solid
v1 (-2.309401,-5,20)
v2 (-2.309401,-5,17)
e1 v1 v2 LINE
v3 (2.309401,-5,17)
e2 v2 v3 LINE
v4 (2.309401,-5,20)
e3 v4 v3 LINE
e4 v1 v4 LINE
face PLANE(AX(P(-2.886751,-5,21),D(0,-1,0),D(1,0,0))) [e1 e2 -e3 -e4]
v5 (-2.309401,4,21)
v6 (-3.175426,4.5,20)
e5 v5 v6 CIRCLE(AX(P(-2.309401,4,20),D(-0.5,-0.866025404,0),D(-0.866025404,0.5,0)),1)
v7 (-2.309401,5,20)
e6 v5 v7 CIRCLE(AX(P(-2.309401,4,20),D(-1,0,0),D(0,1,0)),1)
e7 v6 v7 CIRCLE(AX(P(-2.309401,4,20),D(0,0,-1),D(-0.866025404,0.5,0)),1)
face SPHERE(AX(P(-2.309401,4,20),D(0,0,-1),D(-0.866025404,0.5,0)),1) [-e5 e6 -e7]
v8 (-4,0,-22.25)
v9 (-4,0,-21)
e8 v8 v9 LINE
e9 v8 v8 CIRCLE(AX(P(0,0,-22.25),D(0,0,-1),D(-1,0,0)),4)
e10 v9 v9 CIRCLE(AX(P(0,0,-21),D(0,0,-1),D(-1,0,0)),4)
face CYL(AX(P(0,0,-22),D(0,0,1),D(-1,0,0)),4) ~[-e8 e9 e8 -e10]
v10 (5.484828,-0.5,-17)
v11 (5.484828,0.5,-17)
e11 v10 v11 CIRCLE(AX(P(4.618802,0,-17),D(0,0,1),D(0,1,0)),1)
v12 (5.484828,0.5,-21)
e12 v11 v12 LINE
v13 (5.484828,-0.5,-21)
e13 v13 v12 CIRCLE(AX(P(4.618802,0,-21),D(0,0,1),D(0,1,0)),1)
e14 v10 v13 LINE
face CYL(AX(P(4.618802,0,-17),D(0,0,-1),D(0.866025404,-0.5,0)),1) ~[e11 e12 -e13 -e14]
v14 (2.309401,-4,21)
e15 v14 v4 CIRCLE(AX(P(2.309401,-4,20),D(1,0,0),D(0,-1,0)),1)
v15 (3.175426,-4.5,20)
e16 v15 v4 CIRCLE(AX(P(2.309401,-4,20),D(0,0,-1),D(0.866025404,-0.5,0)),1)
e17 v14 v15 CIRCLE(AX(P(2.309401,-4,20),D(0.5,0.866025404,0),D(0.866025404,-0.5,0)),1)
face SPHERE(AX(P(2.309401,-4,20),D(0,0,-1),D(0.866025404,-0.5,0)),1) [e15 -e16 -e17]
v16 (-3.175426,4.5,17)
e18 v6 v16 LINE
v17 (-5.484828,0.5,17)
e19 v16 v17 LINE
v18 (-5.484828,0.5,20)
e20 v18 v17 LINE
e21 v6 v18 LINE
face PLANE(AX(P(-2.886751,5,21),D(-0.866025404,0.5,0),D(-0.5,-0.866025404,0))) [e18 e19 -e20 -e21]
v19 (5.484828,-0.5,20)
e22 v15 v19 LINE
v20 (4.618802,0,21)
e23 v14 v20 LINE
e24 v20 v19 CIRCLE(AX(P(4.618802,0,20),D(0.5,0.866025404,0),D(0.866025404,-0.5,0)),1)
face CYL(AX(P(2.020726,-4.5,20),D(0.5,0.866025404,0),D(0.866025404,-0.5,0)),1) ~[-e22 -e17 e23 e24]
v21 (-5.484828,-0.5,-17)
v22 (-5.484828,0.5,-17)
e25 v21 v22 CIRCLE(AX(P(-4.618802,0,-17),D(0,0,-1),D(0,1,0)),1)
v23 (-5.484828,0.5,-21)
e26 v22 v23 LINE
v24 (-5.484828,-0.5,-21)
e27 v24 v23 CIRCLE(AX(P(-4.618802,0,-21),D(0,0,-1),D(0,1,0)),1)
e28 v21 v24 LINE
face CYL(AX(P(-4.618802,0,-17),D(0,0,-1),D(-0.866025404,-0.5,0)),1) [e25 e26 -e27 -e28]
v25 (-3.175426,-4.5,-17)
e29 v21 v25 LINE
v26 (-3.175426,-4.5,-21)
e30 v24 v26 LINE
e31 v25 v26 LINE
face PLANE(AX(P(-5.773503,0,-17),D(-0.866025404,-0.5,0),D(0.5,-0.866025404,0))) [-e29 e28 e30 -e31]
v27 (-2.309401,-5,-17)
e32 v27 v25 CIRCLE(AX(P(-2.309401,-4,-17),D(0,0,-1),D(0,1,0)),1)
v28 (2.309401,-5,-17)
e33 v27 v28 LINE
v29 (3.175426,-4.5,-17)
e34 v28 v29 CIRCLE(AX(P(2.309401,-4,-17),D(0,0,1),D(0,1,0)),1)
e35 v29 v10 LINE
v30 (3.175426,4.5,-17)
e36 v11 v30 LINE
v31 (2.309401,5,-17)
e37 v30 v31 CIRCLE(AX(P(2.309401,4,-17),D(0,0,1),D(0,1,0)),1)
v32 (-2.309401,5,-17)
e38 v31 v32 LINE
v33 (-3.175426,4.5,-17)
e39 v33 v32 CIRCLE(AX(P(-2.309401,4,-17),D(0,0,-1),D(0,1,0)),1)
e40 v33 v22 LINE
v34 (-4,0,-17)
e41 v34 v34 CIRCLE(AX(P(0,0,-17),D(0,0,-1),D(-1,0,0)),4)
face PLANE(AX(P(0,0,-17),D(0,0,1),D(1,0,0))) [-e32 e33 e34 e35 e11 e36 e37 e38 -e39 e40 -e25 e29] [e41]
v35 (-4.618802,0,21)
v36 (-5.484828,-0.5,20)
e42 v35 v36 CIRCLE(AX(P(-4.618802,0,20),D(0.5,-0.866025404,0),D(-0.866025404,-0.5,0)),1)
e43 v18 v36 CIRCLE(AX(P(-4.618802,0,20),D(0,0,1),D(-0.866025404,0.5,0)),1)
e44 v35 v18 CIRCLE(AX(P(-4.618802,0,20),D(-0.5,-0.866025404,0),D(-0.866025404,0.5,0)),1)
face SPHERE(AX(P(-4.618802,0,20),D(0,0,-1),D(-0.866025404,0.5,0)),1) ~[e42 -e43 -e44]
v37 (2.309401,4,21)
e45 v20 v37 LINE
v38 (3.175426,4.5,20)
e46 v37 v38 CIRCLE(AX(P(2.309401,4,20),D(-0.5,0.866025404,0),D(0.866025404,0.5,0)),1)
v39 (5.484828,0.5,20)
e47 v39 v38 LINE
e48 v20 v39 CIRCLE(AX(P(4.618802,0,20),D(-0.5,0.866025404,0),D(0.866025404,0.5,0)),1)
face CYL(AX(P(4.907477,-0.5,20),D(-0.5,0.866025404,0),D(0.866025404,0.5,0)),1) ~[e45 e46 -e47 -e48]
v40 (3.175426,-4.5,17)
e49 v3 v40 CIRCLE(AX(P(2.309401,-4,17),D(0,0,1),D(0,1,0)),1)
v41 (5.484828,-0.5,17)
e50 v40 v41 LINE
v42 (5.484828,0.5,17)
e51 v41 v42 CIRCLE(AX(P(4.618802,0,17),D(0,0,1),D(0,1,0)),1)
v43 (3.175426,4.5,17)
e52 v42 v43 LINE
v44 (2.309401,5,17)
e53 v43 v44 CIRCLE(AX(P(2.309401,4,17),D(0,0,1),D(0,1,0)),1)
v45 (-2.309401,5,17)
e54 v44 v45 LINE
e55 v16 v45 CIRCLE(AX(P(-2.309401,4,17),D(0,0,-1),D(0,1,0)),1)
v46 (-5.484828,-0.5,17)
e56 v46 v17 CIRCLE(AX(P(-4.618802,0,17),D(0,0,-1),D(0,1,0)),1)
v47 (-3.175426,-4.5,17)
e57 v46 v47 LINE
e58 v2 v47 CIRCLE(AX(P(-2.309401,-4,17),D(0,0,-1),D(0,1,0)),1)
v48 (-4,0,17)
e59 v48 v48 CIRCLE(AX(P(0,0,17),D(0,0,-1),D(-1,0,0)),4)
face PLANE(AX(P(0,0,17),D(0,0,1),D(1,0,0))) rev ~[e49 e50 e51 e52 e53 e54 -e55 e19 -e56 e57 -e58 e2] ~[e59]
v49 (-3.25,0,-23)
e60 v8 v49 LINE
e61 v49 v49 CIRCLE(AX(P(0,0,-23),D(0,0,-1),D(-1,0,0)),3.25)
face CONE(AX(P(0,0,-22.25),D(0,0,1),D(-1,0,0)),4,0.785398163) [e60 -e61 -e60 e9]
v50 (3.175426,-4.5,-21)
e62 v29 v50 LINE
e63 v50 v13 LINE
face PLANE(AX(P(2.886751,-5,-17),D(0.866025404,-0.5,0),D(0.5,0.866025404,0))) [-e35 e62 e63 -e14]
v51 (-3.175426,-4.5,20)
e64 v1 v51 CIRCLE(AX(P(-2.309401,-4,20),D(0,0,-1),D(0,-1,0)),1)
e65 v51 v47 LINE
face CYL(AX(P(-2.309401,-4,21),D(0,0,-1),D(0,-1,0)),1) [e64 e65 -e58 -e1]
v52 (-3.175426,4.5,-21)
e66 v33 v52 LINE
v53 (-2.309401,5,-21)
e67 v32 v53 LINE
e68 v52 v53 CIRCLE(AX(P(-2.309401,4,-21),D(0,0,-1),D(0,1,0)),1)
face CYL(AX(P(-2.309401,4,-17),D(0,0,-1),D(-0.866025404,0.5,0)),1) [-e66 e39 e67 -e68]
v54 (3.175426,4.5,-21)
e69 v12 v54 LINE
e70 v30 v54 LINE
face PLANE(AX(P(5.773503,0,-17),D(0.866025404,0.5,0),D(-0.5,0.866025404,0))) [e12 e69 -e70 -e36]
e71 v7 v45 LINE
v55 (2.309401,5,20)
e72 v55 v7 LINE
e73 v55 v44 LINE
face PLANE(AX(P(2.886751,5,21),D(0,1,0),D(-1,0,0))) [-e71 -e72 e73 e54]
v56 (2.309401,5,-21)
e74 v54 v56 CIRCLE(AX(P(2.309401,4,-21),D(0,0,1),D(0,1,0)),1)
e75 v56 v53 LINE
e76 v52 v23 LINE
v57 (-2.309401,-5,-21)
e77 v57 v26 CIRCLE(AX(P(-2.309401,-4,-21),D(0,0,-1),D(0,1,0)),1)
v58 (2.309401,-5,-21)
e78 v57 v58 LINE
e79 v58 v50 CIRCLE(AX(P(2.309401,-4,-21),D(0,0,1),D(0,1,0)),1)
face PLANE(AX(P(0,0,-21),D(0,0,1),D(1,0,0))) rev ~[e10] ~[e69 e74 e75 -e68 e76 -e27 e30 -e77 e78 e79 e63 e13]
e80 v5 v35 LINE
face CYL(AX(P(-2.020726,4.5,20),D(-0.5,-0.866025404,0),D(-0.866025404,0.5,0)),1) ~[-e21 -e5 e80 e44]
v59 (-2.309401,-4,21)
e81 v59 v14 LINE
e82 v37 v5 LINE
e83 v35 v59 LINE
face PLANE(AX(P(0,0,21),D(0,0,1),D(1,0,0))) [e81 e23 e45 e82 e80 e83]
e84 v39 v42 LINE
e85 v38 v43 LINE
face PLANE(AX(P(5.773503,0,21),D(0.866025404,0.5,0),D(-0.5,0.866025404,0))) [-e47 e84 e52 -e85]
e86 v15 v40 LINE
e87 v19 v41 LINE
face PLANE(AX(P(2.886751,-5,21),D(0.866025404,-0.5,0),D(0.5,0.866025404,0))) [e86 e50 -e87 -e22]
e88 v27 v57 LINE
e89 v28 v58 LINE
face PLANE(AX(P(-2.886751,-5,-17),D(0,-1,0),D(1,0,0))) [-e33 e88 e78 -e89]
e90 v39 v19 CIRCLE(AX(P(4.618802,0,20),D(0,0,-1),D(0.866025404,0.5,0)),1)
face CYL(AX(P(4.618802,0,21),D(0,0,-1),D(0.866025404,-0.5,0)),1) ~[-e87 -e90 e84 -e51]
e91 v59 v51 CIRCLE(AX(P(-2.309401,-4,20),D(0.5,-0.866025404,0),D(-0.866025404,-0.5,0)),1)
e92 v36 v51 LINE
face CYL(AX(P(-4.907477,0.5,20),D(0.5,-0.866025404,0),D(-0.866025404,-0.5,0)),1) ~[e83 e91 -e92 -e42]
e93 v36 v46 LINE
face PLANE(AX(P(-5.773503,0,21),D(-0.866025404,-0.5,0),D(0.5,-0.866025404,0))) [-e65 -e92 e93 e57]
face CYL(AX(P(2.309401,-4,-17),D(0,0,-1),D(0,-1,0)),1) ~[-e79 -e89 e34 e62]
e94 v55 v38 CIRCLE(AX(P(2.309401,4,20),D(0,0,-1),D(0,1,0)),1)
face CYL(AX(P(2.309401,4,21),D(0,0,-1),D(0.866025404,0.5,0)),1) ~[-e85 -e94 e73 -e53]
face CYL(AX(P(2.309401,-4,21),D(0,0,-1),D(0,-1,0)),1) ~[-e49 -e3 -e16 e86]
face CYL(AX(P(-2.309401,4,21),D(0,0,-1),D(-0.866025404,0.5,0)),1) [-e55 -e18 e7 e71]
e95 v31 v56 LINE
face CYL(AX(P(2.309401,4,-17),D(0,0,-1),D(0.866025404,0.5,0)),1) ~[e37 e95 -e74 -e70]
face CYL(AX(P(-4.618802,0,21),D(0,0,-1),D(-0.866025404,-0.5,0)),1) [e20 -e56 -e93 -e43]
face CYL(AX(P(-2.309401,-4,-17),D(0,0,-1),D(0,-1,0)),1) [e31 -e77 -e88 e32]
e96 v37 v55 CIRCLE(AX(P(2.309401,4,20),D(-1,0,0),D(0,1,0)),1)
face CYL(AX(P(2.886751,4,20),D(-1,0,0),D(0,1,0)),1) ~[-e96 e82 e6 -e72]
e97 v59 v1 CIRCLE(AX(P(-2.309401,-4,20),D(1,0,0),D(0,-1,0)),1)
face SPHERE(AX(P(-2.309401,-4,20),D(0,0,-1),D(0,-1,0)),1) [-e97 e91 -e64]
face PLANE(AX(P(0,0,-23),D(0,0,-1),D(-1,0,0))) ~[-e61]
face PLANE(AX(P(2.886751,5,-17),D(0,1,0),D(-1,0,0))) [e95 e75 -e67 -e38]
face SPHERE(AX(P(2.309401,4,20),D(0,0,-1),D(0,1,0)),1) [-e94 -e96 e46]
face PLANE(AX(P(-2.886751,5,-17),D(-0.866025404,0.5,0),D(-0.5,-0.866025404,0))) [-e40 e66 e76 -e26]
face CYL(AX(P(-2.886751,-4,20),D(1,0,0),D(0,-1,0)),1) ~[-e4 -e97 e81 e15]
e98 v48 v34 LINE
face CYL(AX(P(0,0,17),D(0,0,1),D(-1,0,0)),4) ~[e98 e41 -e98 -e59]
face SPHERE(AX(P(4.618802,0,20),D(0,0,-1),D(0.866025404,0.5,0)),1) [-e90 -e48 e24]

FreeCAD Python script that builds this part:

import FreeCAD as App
import Part
import Sketcher
from FreeCAD import Vector
Q = App.Units.Quantity


def edges_at(feature, points):
    """Names of the edges that pass closest to the given points."""
    edges = feature.Shape.Edges
    near = lambda p: min(range(len(edges)), key=lambda i: edges[i].distToShape(Part.Vertex(*p))[0])
    return sorted({f"Edge{near(p) + 1}" for p in points})


def add_polygon(sketch, points):
    """Adds a closed chain of lines whose ends are joined by coincident constraints."""
    first, n = sketch.GeometryCount, len(points)
    for a, b in zip(points, points[1:] + points[:1]):
        sketch.addGeometry(Part.LineSegment(App.Vector(*a, 0), App.Vector(*b, 0)), False)
    for i in range(n):
        sketch.addConstraint(Sketcher.Constraint("Coincident", first + i, 2, first + (i + 1) % n, 1))

doc = App.newDocument("Part")
body = doc.addObject("PartDesign::Body", "Body")

# Sketch on XY plane
sketch1 = body.newObject("Sketcher::SketchObject", "Sketch")
sketch1.AttachmentSupport = (doc.getObject("XY_Plane"), [""])
sketch1.MapMode = "FlatFace"
sketch1.AttachmentOffset = App.Placement(Vector(0, 0, 21), App.Rotation())
add_polygon(sketch1, [(-3, -5), (3, -5), (6, 0), (3, 5), (-3, 5), (-6, 0)])  # lines 0-5
sketch1.addConstraint([
    Sketcher.Constraint("Horizontal", 0),
    Sketcher.Constraint("Horizontal", 3),
    Sketcher.Constraint("Symmetric", 0, 2, 3, 2, -1, 1),
    Sketcher.Constraint("Symmetric", 1, 2, 4, 2, -1, 1),
    Sketcher.Constraint("PointOnObject", 1, 2, -1),
    Sketcher.Constraint("Parallel", 2, 5),
    Sketcher.Constraint("Vertical", 0, 2, 2, 2),
    Sketcher.Constraint("Angle", 1, Q("60 deg")),
    Sketcher.Constraint("DistanceY", 0, 2, -1, 1, Q("5 mm")),
    Sketcher.Constraint("DistanceX", 0, 1, 0, 2, Q("5.773503 mm")),
])
pad1 = body.newObject("PartDesign::Pad", "Pad")
pad1.Profile = sketch1
pad1.Length = 4
pad1.Reversed = True

# Sketch on XY plane
sketch2 = body.newObject("Sketcher::SketchObject", "Sketch001")
sketch2.AttachmentSupport = (doc.getObject("XY_Plane"), [""])
sketch2.MapMode = "FlatFace"
sketch2.AttachmentOffset = App.Placement(Vector(0, 0, 17), App.Rotation())
sketch2.addGeometry(Part.Circle(Vector(0, 0, 0), Vector(0, 0, 1), 4), False)
sketch2.addConstraint([
    Sketcher.Constraint("Coincident", 0, 3, -1, 1),
    Sketcher.Constraint("Diameter", 0, Q("8 mm")),
])
pad2 = body.newObject("PartDesign::Pad", "Pad001")
pad2.Profile = sketch2
pad2.Length = 34
pad2.Reversed = True

# Sketch on XY plane
sketch3 = body.newObject("Sketcher::SketchObject", "Sketch002")
sketch3.AttachmentSupport = (doc.getObject("XY_Plane"), [""])
sketch3.MapMode = "FlatFace"
sketch3.AttachmentOffset = App.Placement(Vector(0, 0, -17), App.Rotation())
add_polygon(sketch3, [(-3, -5), (3, -5), (6, 0), (3, 5), (-3, 5), (-6, 0)])  # lines 0-5
sketch3.addConstraint([
    Sketcher.Constraint("Horizontal", 0),
    Sketcher.Constraint("Horizontal", 3),
    Sketcher.Constraint("Symmetric", 0, 2, 3, 2, -1, 1),
    Sketcher.Constraint("Symmetric", 1, 2, 4, 2, -1, 1),
    Sketcher.Constraint("PointOnObject", 1, 2, -1),
    Sketcher.Constraint("Parallel", 2, 5),
    Sketcher.Constraint("Vertical", 0, 2, 2, 2),
    Sketcher.Constraint("Angle", 1, Q("60 deg")),
    Sketcher.Constraint("DistanceY", 0, 2, -1, 1, Q("5 mm")),
    Sketcher.Constraint("DistanceX", 0, 1, 0, 2, Q("5.773503 mm")),
])
pad3 = body.newObject("PartDesign::Pad", "Pad002")
pad3.Profile = sketch3
pad3.Length = 4
pad3.Reversed = True

# Sketch on XZ plane
sketch4 = body.newObject("Sketcher::SketchObject", "Sketch003")
sketch4.AttachmentSupport = (doc.getObject("XZ_Plane"), [""])
sketch4.MapMode = "FlatFace"
add_polygon(sketch4, [(0, -21), (0, -23), (4, -23), (4, -21)])  # lines 0-3
sketch4.addConstraint([
    Sketcher.Constraint("Vertical", 0),
    Sketcher.Constraint("Horizontal", 1),
    Sketcher.Constraint("Vertical", 2),
    Sketcher.Constraint("Horizontal", 3),
    Sketcher.Constraint("PointOnObject", 0, 2, -2),
    Sketcher.Constraint("DistanceX", 1, 1, 1, 2, Q("4 mm")),
    Sketcher.Constraint("DistanceY", 0, 2, 0, 1, Q("2 mm")),
    Sketcher.Constraint("DistanceY", 0, 2, -1, 1, Q("23 mm")),
])
revolution = body.newObject("PartDesign::Revolution", "Revolution")
revolution.Profile = sketch4
revolution.ReferenceAxis = (sketch4, ["V_Axis"])
revolution.Angle = 360
doc.recompute()

chamfer = body.newObject("PartDesign::Chamfer", "Chamfer")
chamfer.Base = (revolution, edges_at(revolution, [(4, 0, -23)]))
chamfer.Size = 0.75
doc.recompute()

fillet = body.newObject("PartDesign::Fillet", "Fillet")
fillet.Base = (chamfer, edges_at(chamfer, [
    (-5.774, 0, 19),
    (-2.887, 5, 19),
    (2.887, 5, 19),
    (5.774, 0, 19),
    (2.887, -5, 19),
    (-2.887, -5, 19),
    (-2.887, -5, -19),
    (-5.774, 0, -19),
    (-2.887, 5, -19),
    (2.887, 5, -19),
    (5.774, 0, -19),
    (2.887, -5, -19),
    (-4.33, 2.5, 21),
    (0, 5, 21),
    (4.33, 2.5, 21),
    (4.33, -2.5, 21),
    (0, -5, 21),
    (-4.33, -2.5, 21),
]))
fillet.Radius = 1

doc.recompute()
